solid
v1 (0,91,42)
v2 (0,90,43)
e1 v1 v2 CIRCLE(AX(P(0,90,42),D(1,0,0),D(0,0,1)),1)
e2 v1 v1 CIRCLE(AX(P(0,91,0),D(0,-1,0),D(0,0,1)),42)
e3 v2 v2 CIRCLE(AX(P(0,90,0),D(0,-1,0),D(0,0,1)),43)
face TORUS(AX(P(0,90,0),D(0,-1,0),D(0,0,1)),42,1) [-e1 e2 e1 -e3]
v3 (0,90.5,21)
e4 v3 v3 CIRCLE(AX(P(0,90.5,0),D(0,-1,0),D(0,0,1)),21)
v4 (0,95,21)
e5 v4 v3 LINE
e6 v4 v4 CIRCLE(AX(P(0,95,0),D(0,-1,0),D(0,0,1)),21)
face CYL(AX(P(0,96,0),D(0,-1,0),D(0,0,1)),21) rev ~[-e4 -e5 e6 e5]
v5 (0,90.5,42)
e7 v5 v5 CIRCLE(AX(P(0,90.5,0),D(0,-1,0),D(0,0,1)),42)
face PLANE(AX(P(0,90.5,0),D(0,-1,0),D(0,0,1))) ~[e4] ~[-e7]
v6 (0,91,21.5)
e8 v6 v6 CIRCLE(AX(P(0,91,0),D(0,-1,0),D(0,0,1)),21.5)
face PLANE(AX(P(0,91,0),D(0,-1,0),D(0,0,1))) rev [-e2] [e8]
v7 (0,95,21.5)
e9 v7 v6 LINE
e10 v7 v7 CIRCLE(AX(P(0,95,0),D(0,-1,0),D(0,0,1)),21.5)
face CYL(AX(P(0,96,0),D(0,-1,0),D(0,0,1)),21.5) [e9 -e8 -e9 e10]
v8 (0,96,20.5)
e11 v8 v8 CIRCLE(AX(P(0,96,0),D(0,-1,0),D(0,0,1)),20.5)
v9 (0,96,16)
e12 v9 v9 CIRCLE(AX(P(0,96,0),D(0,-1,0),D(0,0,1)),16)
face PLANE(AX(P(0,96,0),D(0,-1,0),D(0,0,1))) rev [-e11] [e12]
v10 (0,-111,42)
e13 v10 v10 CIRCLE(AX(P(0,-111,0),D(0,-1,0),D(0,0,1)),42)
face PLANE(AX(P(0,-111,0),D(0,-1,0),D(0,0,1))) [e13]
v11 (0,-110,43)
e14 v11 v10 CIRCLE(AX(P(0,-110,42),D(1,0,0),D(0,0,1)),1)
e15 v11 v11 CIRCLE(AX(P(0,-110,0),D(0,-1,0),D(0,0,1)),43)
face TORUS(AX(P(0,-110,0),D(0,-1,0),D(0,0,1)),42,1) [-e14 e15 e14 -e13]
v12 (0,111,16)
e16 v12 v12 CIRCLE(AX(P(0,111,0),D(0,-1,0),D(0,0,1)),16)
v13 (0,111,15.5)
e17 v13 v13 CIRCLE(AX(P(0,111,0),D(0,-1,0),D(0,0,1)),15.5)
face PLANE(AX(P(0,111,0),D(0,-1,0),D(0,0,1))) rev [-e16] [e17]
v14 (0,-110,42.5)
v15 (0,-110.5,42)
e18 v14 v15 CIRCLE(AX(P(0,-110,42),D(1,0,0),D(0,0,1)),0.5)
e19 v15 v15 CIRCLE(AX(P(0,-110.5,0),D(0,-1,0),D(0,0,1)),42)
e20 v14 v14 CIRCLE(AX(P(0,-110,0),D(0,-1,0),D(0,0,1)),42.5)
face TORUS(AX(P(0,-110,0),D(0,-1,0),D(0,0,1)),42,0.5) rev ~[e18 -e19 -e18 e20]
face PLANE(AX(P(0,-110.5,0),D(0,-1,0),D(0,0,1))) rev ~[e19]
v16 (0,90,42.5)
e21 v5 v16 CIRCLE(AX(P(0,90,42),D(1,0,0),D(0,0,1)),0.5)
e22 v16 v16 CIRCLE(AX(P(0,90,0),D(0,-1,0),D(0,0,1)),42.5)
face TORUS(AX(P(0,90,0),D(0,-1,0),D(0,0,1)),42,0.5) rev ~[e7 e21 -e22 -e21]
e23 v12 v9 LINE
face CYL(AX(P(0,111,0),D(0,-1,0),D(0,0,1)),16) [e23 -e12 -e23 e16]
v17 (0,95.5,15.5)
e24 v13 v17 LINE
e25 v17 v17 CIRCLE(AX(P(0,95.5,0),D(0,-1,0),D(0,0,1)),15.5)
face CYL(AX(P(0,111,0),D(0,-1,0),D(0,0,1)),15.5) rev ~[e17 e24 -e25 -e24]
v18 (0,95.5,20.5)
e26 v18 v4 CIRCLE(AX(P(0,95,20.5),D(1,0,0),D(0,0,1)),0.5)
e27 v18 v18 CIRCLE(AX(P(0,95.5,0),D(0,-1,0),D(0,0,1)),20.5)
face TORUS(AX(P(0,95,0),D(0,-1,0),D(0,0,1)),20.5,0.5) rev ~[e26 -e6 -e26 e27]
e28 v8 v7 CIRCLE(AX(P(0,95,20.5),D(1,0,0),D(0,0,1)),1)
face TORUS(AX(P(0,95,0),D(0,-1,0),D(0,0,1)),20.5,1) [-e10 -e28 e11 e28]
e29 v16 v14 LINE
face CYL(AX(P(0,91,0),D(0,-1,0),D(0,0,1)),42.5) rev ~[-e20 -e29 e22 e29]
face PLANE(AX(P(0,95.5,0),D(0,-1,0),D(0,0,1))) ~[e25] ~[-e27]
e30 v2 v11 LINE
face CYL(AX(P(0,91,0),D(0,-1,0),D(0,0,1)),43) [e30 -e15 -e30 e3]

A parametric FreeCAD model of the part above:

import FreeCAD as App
import Part
import Sketcher


def edges_at(feature, points):
    """Names of the edges that pass closest to the given points."""
    edges = feature.Shape.Edges
    near = lambda p: min(range(len(edges)), key=lambda i: edges[i].distToShape(Part.Vertex(*p))[0])
    return sorted({f"Edge{near(p) + 1}" for p in points})


def faces_at(feature, points):
    """Names of the faces that lie closest to the given points."""
    faces = feature.Shape.Faces
    near = lambda p: min(range(len(faces)), key=lambda i: faces[i].distToShape(Part.Vertex(*p))[0])
    return sorted({f"Face{near(p) + 1}" for p in points})

doc = App.newDocument("Part")
body = doc.addObject("PartDesign::Body", "Body")

sketch1 = body.newObject("Sketcher::SketchObject", "Sketch")
sketch1.AttachmentSupport = (doc.getObject("XY_Plane"), [""])
sketch1.MapMode = "FlatFace"
sketch1.addGeometry([
    Part.LineSegment(App.Vector(16, 111, 0), App.Vector(0, 111, 0)),
    Part.LineSegment(App.Vector(0, 111, 0), App.Vector(0, -111, 0)),
    Part.LineSegment(App.Vector(0, -111, 0), App.Vector(43, -111, 0)),
    Part.LineSegment(App.Vector(43, -111, 0), App.Vector(43, 91, 0)),
    Part.LineSegment(App.Vector(43, 91, 0), App.Vector(21.5, 91, 0)),
    Part.LineSegment(App.Vector(21.5, 91, 0), App.Vector(21.5, 96, 0)),
    Part.LineSegment(App.Vector(21.5, 96, 0), App.Vector(16, 96, 0)),
    Part.LineSegment(App.Vector(16, 96, 0), App.Vector(16, 111, 0)),
], False)
sketch1.addConstraint([
    Sketcher.Constraint("Coincident", 0, 2, 1, 1),
    Sketcher.Constraint("Coincident", 1, 2, 2, 1),
    Sketcher.Constraint("Coincident", 2, 2, 3, 1),
    Sketcher.Constraint("Coincident", 3, 2, 4, 1),
    Sketcher.Constraint("Coincident", 4, 2, 5, 1),
    Sketcher.Constraint("Coincident", 5, 2, 6, 1),
    Sketcher.Constraint("Coincident", 6, 2, 7, 1),
    Sketcher.Constraint("Coincident", 7, 2, 0, 1),
    Sketcher.Constraint("Horizontal", 0),
    Sketcher.Constraint("Vertical", 1),
    Sketcher.Constraint("Horizontal", 2),
    Sketcher.Constraint("Vertical", 3),
    Sketcher.Constraint("Horizontal", 4),
    Sketcher.Constraint("Vertical", 5),
    Sketcher.Constraint("Horizontal", 6),
    Sketcher.Constraint("Vertical", 7),
    Sketcher.Constraint("Symmetric", 0, 2, 1, 2, -1, 1),
    Sketcher.Constraint("DistanceX", 0, 2, 0, 1, 16.0),
    Sketcher.Constraint("DistanceX", 2, 1, 2, 2, 43.0),
    Sketcher.Constraint("DistanceY", 1, 2, 1, 1, 222.0),
    Sketcher.Constraint("DistanceY", 3, 1, 3, 2, 202.0),
    Sketcher.Constraint("DistanceY", 5, 1, 5, 2, 5.0),
    Sketcher.Constraint("DistanceX", 4, 2, 4, 1, 21.5),
])
revolution = body.newObject("PartDesign::Revolution", "Revolution")
revolution.Profile = sketch1
revolution.ReferenceAxis = (sketch1, ["V_Axis"])
revolution.Angle = 360
doc.recompute()

fillet = body.newObject("PartDesign::Fillet", "Fillet")
fillet.Base = (revolution, edges_at(revolution, [(0, -111, -43), (0, 91, -43), (0, 96, -21.5)]))
fillet.Radius = 1
doc.recompute()

thickness = body.newObject("PartDesign::Thickness", "Thickness")
thickness.Base = (fillet, faces_at(fillet, [(0, 111, 0)]))
thickness.Value = 0.5
thickness.Reversed = True
thickness.Join = "Intersection"

doc.recompute()
